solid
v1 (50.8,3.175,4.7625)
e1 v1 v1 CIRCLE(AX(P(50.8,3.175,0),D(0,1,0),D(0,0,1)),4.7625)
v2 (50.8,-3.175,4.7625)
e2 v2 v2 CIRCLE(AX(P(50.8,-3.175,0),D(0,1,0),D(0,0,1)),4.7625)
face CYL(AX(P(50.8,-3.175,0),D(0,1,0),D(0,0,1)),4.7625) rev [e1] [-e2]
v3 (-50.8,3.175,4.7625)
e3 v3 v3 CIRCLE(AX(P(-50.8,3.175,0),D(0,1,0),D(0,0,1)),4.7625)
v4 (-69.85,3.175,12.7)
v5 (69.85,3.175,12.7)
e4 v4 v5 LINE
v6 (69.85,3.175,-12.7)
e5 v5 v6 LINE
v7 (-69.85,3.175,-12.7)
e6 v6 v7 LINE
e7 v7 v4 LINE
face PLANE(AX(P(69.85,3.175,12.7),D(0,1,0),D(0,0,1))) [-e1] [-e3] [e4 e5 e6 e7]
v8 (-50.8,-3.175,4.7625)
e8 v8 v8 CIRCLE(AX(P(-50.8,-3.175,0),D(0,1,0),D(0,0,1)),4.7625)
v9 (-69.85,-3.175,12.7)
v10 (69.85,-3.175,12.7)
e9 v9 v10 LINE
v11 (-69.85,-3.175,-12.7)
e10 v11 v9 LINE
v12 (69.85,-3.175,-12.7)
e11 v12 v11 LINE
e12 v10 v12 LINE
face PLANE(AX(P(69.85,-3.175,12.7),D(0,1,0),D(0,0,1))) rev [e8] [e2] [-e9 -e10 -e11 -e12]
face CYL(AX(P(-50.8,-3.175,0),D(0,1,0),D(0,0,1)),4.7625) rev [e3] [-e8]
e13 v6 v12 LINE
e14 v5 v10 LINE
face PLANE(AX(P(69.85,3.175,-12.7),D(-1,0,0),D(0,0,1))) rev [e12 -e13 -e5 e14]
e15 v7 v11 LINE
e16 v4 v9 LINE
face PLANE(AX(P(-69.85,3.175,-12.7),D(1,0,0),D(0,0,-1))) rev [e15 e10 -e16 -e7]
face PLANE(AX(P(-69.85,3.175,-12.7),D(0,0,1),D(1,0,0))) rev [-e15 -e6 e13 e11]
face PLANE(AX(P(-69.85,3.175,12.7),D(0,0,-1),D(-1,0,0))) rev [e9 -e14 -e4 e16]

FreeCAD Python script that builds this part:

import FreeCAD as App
import Part
import Sketcher
Q = App.Units.Quantity


def add_polygon(sketch, points):
    """Adds a closed chain of lines whose ends are joined by coincident constraints."""
    first, n = sketch.GeometryCount, len(points)
    for a, b in zip(points, points[1:] + points[:1]):
        sketch.addGeometry(Part.LineSegment(App.Vector(*a, 0), App.Vector(*b, 0)), False)
    for i in range(n):
        sketch.addConstraint(Sketcher.Constraint("Coincident", first + i, 2, first + (i + 1) % n, 1))

doc = App.newDocument("Part")
body = doc.addObject("PartDesign::Body", "Body")

# Sketch on XZ plane
sketch1 = body.newObject("Sketcher::SketchObject", "Sketch")
sketch1.AttachmentSupport = (doc.getObject("XZ_Plane"), [""])
sketch1.MapMode = "FlatFace"
add_polygon(sketch1, [(-69.85, -12.7), (-69.85, 12.7), (69.85, 12.7), (69.85, -12.7)])  # lines 0-3
sketch1.addConstraint(Sketcher.Constraint("Vertical", 0))
sketch1.addConstraint(Sketcher.Constraint("Horizontal", 1))
sketch1.addConstraint(Sketcher.Constraint("Vertical", 2))
sketch1.addConstraint(Sketcher.Constraint("Horizontal", 3))
sketch1.addConstraint(Sketcher.Constraint("Symmetric", 0, 2, 2, 2, -1, 1))
sketch1.addConstraint(Sketcher.Constraint("DistanceY", 0, 1, 0, 2, Q("1 in")))
sketch1.addConstraint(Sketcher.Constraint("DistanceX", 1, 1, 1, 2, Q("5.5 in")))
pad1 = body.newObject("PartDesign::Pad", "Pad")
pad1.Profile = sketch1
pad1.Length = Q("0.25 in")
pad1.Midplane = True

# Sketch on XZ plane
sketch2 = body.newObject("Sketcher::SketchObject", "Sketch001")
sketch2.AttachmentSupport = (doc.getObject("XZ_Plane"), [""])
sketch2.MapMode = "FlatFace"
sketch2.AttachmentOffset = App.Placement(App.Vector(0, 0, -0.125 * 25.4), App.Rotation())
sketch2.addGeometry(Part.Circle(App.Vector(50.8, 0, 0), App.Vector(0, 0, 1), 4.7625), False)
sketch2.addGeometry(Part.Circle(App.Vector(-50.8, 0, 0), App.Vector(0, 0, 1), 4.7625), False)
sketch2.addConstraint(Sketcher.Constraint("Equal", 0, 1))
sketch2.addConstraint(Sketcher.Constraint("Symmetric", 0, 3, 1, 3, -1, 1))
sketch2.addConstraint(Sketcher.Constraint("PointOnObject", 0, 3, -1))
sketch2.addConstraint(Sketcher.Constraint("Diameter", 0, Q("0.375 in")))
sketch2.addConstraint(Sketcher.Constraint("DistanceX", -1, 1, 0, 3, Q("2 in")))
pocket1 = body.newObject("PartDesign::Pocket", "Pocket")
pocket1.Profile = sketch2
pocket1.Type = "ThroughAll"
pocket1.Reversed = True

doc.recompute()
